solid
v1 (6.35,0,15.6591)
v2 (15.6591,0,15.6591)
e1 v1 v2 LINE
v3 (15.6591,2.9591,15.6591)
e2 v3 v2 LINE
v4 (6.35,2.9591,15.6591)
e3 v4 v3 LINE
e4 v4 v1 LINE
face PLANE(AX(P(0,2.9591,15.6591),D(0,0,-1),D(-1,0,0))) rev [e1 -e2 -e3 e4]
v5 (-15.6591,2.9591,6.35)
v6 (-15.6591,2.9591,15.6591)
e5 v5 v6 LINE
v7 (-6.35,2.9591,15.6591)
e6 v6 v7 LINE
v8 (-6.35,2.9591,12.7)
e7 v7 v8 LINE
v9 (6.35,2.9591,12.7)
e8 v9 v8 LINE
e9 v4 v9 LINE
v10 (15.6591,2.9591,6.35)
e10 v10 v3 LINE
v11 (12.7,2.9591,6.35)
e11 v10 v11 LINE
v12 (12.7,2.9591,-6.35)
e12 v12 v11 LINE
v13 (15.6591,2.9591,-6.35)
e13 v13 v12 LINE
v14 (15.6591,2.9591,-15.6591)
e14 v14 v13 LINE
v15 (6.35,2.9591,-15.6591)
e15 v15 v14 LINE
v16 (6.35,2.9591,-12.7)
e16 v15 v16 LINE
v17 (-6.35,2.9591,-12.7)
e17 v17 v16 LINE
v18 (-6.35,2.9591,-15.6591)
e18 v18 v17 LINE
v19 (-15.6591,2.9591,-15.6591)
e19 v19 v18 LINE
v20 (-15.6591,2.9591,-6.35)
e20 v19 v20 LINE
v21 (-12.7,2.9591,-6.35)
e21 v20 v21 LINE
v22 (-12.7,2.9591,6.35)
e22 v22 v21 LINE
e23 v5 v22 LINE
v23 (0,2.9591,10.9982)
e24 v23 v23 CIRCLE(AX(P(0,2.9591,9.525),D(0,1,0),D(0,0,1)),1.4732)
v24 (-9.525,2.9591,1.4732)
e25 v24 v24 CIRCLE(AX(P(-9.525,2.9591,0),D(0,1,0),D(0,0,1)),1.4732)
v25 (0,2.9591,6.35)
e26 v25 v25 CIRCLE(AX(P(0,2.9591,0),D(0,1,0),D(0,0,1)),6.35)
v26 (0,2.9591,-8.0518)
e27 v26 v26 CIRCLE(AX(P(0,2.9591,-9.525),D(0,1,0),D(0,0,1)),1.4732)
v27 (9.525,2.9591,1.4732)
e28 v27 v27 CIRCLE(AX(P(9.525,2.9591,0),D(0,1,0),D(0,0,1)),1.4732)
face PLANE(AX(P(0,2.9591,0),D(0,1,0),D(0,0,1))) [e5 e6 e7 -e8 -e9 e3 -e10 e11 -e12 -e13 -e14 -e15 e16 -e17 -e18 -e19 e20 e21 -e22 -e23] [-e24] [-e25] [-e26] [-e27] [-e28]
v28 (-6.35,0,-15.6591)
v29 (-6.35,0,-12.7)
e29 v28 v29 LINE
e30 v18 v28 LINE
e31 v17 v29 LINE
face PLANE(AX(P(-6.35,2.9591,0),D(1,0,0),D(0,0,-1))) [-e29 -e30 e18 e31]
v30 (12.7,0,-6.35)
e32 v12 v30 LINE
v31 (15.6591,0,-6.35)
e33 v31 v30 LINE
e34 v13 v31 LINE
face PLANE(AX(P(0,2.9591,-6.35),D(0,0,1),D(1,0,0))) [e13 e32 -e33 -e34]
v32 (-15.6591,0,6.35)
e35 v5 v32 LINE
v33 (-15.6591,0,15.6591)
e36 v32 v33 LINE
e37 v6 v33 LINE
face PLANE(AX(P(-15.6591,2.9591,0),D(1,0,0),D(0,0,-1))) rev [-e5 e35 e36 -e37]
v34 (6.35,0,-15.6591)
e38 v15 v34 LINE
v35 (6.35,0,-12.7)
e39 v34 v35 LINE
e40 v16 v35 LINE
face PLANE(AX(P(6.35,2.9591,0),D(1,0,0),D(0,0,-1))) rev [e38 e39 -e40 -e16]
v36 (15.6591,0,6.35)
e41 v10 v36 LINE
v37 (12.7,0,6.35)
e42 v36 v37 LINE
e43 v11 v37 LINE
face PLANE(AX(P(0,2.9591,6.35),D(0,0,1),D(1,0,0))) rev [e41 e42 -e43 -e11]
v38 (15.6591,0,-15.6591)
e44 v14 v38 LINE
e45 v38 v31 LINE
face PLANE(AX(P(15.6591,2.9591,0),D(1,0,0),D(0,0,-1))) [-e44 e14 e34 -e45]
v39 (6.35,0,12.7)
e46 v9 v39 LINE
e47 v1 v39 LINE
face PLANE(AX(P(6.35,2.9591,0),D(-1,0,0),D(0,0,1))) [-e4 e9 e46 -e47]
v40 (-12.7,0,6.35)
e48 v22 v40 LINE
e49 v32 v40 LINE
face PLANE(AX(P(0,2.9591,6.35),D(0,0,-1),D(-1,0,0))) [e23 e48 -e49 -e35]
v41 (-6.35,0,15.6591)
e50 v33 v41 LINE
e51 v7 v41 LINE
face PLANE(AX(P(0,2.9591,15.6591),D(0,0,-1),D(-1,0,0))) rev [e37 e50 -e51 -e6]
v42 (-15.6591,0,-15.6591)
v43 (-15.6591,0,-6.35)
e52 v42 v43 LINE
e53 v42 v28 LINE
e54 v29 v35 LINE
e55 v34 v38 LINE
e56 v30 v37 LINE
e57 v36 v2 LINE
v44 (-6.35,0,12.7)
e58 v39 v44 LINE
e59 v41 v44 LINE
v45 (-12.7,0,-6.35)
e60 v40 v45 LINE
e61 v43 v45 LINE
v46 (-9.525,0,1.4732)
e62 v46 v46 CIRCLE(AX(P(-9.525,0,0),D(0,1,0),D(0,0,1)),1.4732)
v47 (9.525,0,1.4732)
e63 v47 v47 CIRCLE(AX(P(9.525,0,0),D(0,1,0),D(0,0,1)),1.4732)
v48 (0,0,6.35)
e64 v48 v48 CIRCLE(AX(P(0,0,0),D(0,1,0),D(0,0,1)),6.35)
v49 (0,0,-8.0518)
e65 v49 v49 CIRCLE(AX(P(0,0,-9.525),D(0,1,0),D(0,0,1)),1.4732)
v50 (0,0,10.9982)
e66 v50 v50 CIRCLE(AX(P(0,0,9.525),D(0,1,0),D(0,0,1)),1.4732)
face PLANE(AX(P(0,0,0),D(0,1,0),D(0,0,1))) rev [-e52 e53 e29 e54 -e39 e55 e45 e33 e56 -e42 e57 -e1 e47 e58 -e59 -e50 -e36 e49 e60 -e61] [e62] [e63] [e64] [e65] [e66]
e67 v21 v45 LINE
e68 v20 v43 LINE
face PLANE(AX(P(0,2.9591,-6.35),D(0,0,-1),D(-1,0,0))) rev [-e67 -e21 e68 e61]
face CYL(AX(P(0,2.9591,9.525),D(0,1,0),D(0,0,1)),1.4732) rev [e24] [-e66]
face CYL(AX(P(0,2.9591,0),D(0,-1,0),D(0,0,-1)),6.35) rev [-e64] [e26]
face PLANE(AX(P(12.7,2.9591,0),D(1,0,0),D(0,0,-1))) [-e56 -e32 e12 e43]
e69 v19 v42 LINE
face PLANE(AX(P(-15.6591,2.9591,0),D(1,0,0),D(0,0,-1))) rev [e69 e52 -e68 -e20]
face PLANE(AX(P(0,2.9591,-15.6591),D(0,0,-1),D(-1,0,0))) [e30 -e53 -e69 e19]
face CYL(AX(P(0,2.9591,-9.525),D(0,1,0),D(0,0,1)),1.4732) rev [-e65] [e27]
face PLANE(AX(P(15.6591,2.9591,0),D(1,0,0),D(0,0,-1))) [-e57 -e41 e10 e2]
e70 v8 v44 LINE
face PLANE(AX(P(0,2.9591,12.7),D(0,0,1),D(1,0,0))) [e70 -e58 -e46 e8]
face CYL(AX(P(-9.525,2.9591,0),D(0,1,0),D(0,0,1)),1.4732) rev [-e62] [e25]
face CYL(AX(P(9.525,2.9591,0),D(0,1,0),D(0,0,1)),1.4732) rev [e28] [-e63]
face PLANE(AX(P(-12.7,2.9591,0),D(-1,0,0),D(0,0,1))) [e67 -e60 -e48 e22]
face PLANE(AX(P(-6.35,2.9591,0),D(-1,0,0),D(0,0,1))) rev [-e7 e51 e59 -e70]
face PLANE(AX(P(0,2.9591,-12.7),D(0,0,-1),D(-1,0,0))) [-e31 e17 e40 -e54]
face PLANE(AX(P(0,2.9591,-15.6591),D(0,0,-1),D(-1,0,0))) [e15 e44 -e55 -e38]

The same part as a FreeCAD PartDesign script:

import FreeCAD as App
import Part
import Sketcher

V = App.Vector
Q = App.Units.Quantity


def add_polygon(sketch, points):
    """Adds a closed chain of lines whose ends are joined by coincident constraints."""
    first, n = sketch.GeometryCount, len(points)
    for a, b in zip(points, points[1:] + points[:1]):
        sketch.addGeometry(Part.LineSegment(App.Vector(*a, 0), App.Vector(*b, 0)), False)
    for i in range(n):
        sketch.addConstraint(Sketcher.Constraint("Coincident", first + i, 2, first + (i + 1) % n, 1))

doc = App.newDocument("Part")
body = doc.addObject("PartDesign::Body", "Body")

# Sketch on XZ plane
sketch1 = doc.addObject("Sketcher::SketchObject", "Sketch")
body.addObject(sketch1)
sketch1.AttachmentSupport = (doc.XZ_Plane, [""])
sketch1.MapMode = "FlatFace"
add_polygon(sketch1, [(15.7, -15.7), (6.3, -15.7), (6.3, -12.7), (-6.3, -12.7), (-6.3, -15.7), (-15.7, -15.7), (-15.7, -6.3), (-12.7, -6.3), (-12.7, 6.3), (-15.7, 6.3), (-15.7, 15.7), (-6.3, 15.7), (-6.3, 12.7), (6.3, 12.7), (6.3, 15.7), (15.7, 15.7), (15.7, 6.3), (12.7, 6.3), (12.7, -6.3), (15.7, -6.3)])  # lines 0-19
sketch1.addGeometry(Part.Circle(V(0, 0, 0), V(0, 0, 1), 6.3), False)  # 20
sketch1.addConstraint(Sketcher.Constraint("Horizontal", 0))
sketch1.addConstraint(Sketcher.Constraint("Vertical", 1))
sketch1.addConstraint(Sketcher.Constraint("Horizontal", 2))
sketch1.addConstraint(Sketcher.Constraint("Vertical", 3))
sketch1.addConstraint(Sketcher.Constraint("Horizontal", 4))
sketch1.addConstraint(Sketcher.Constraint("Vertical", 5))
sketch1.addConstraint(Sketcher.Constraint("Horizontal", 6))
sketch1.addConstraint(Sketcher.Constraint("Vertical", 7))
sketch1.addConstraint(Sketcher.Constraint("Horizontal", 8))
sketch1.addConstraint(Sketcher.Constraint("Vertical", 9))
sketch1.addConstraint(Sketcher.Constraint("Horizontal", 10))
sketch1.addConstraint(Sketcher.Constraint("Vertical", 11))
sketch1.addConstraint(Sketcher.Constraint("Horizontal", 12))
sketch1.addConstraint(Sketcher.Constraint("Vertical", 13))
sketch1.addConstraint(Sketcher.Constraint("Horizontal", 14))
sketch1.addConstraint(Sketcher.Constraint("Vertical", 15))
sketch1.addConstraint(Sketcher.Constraint("Horizontal", 16))
sketch1.addConstraint(Sketcher.Constraint("Vertical", 17))
sketch1.addConstraint(Sketcher.Constraint("Horizontal", 18))
sketch1.addConstraint(Sketcher.Constraint("Vertical", 19))
sketch1.addConstraint(Sketcher.Constraint("Coincident", 20, 3, -1, 1))
sketch1.addConstraint(Sketcher.Constraint("Symmetric", 0, 2, 10, 2, -1, 1))
sketch1.addConstraint(Sketcher.Constraint("Symmetric", 2, 2, 12, 2, -1, 1))
sketch1.addConstraint(Sketcher.Constraint("Symmetric", 4, 2, 14, 2, -1, 1))
sketch1.addConstraint(Sketcher.Constraint("Symmetric", 6, 2, 16, 2, -1, 1))
sketch1.addConstraint(Sketcher.Constraint("Symmetric", 8, 2, 18, 2, -1, 1))
sketch1.addConstraint(Sketcher.Constraint("Symmetric", 0, 2, 3, 2, -2))
sketch1.addConstraint(Sketcher.Constraint("Symmetric", 8, 2, 15, 2, -2))
sketch1.addConstraint(Sketcher.Constraint("Equal", 18, 1))
sketch1.addConstraint(Sketcher.Constraint("Equal", 14, 5))
sketch1.addConstraint(Sketcher.Constraint("Equal", 12, 7))
sketch1.addConstraint(Sketcher.Constraint("Diameter", 20, Q("0.5 in")))
sketch1.addConstraint(Sketcher.Constraint("DistanceX", 2, 2, 2, 1, Q("0.5 in")))
sketch1.addConstraint(Sketcher.Constraint("DistanceY", 1, 2, -1, 1, Q("0.5 in")))
sketch1.addConstraint(Sketcher.Constraint("DistanceX", 0, 2, 0, 1, Q("0.3665 in")))
pad1 = doc.addObject("PartDesign::Pad", "Pad")
body.addObject(pad1)
pad1.Profile = sketch1
pad1.Length = Q("0.1165 in")
pad1.Reversed = True

# Sketch on XZ plane
sketch2 = doc.addObject("Sketcher::SketchObject", "Sketch001")
body.addObject(sketch2)
sketch2.AttachmentSupport = (doc.XZ_Plane, [""])
sketch2.MapMode = "FlatFace"
sketch2.AttachmentOffset = App.Placement(V(0, 0, -0.1165 * 25.4), App.Rotation())
sketch2.addGeometry(Part.Circle(V(0, -9.5, 0), V(0, 0, 1), 1.5), False)
sketch2.addGeometry(Part.Circle(V(9.5, 0, 0), V(0, 0, 1), 1.5), False)
sketch2.addGeometry(Part.Circle(V(0, 9.5, 0), V(0, 0, 1), 1.5), False)
sketch2.addGeometry(Part.Circle(V(-9.5, 0, 0), V(0, 0, 1), 1.5), False)
sketch2.addConstraint(Sketcher.Constraint("Equal", 0, 1))
sketch2.addConstraint(Sketcher.Constraint("Equal", 1, 2))
sketch2.addConstraint(Sketcher.Constraint("Equal", 2, 3))
sketch2.addConstraint(Sketcher.Constraint("Symmetric", 0, 3, 2, 3, -1, 1))
sketch2.addConstraint(Sketcher.Constraint("Symmetric", 1, 3, 3, 3, -1, 1))
sketch2.addConstraint(Sketcher.Constraint("PointOnObject", 0, 3, -2))
sketch2.addConstraint(Sketcher.Constraint("PointOnObject", 1, 3, -1))
sketch2.addConstraint(Sketcher.Constraint("Diameter", 0, Q("0.116 in")))
sketch2.addConstraint(Sketcher.Constraint("DistanceY", 0, 3, 2, 3, Q("0.75 in")))
sketch2.addConstraint(Sketcher.Constraint("DistanceX", 3, 3, 1, 3, Q("0.75 in")))
doc.recompute()
hole = doc.addObject("PartDesign::Hole", "Hole")
body.addObject(hole)
hole.Profile = sketch2
hole.ThreadType = "None"
hole.Diameter = Q("0.116 in")
hole.DepthType = "Dimension"
hole.Depth = Q("0.1165 in")
hole.DrillPoint = "Flat"
hole.Reversed = True

doc.recompute()
